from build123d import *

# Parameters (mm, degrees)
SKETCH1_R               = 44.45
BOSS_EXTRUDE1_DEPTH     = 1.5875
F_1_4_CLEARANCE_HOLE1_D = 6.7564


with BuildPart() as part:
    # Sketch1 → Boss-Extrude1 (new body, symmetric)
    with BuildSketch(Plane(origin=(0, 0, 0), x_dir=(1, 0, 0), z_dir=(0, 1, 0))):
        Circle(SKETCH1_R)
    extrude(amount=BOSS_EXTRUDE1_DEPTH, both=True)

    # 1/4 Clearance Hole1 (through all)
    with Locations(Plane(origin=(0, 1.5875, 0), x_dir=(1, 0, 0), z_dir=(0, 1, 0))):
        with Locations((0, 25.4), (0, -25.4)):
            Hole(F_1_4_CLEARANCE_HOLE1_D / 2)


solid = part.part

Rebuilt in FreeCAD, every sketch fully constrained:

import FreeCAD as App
import Part
import Sketcher

V = App.Vector
Q = App.Units.Quantity

doc = App.newDocument("Part")
body = doc.addObject("PartDesign::Body", "Body")

sketch1 = body.newObject("Sketcher::SketchObject", "Sketch")
sketch1.AttachmentSupport = (doc.getObject("XZ_Plane"), [""])
sketch1.MapMode = "FlatFace"
sketch1.addGeometry(Part.Circle(V(0, 0, 0), V(0, 0, 1), 44.45), False)
sketch1.addConstraint([
    Sketcher.Constraint("Coincident", 0, 3, -1, 1),
    Sketcher.Constraint("Diameter", 0, Q("3.5 in")),
])
pad1 = body.newObject("PartDesign::Pad", "Pad")
pad1.Profile = sketch1
pad1.Length = Q("0.125 in")
pad1.Midplane = True

sketch2 = body.newObject("Sketcher::SketchObject", "Sketch001")
sketch2.AttachmentSupport = (doc.getObject("XZ_Plane"), [""])
sketch2.MapMode = "FlatFace"
sketch2.AttachmentOffset = App.Placement(V(0, 0, -0.0625 * 25.4), App.Rotation())
sketch2.addGeometry([
    Part.Circle(V(0, -25.4, 0), V(0, 0, 1), 3.3782),
    Part.Circle(V(0, 25.4, 0), V(0, 0, 1), 3.3782),
], False)
sketch2.addConstraint([
    Sketcher.Constraint("Equal", 0, 1),
    Sketcher.Constraint("Symmetric", 0, 3, 1, 3, -1, 1),
    Sketcher.Constraint("PointOnObject", 0, 3, -2),
    Sketcher.Constraint("Diameter", 0, Q("0.266 in")),
    Sketcher.Constraint("DistanceY", 0, 3, -1, 1, Q("1 in")),
])
doc.recompute()
hole = body.newObject("PartDesign::Hole", "Hole")
hole.Profile = sketch2
hole.ThreadType = "None"
hole.Diameter = Q("0.266 in")
hole.DepthType = "ThroughAll"
hole.Reversed = True

doc.recompute()
